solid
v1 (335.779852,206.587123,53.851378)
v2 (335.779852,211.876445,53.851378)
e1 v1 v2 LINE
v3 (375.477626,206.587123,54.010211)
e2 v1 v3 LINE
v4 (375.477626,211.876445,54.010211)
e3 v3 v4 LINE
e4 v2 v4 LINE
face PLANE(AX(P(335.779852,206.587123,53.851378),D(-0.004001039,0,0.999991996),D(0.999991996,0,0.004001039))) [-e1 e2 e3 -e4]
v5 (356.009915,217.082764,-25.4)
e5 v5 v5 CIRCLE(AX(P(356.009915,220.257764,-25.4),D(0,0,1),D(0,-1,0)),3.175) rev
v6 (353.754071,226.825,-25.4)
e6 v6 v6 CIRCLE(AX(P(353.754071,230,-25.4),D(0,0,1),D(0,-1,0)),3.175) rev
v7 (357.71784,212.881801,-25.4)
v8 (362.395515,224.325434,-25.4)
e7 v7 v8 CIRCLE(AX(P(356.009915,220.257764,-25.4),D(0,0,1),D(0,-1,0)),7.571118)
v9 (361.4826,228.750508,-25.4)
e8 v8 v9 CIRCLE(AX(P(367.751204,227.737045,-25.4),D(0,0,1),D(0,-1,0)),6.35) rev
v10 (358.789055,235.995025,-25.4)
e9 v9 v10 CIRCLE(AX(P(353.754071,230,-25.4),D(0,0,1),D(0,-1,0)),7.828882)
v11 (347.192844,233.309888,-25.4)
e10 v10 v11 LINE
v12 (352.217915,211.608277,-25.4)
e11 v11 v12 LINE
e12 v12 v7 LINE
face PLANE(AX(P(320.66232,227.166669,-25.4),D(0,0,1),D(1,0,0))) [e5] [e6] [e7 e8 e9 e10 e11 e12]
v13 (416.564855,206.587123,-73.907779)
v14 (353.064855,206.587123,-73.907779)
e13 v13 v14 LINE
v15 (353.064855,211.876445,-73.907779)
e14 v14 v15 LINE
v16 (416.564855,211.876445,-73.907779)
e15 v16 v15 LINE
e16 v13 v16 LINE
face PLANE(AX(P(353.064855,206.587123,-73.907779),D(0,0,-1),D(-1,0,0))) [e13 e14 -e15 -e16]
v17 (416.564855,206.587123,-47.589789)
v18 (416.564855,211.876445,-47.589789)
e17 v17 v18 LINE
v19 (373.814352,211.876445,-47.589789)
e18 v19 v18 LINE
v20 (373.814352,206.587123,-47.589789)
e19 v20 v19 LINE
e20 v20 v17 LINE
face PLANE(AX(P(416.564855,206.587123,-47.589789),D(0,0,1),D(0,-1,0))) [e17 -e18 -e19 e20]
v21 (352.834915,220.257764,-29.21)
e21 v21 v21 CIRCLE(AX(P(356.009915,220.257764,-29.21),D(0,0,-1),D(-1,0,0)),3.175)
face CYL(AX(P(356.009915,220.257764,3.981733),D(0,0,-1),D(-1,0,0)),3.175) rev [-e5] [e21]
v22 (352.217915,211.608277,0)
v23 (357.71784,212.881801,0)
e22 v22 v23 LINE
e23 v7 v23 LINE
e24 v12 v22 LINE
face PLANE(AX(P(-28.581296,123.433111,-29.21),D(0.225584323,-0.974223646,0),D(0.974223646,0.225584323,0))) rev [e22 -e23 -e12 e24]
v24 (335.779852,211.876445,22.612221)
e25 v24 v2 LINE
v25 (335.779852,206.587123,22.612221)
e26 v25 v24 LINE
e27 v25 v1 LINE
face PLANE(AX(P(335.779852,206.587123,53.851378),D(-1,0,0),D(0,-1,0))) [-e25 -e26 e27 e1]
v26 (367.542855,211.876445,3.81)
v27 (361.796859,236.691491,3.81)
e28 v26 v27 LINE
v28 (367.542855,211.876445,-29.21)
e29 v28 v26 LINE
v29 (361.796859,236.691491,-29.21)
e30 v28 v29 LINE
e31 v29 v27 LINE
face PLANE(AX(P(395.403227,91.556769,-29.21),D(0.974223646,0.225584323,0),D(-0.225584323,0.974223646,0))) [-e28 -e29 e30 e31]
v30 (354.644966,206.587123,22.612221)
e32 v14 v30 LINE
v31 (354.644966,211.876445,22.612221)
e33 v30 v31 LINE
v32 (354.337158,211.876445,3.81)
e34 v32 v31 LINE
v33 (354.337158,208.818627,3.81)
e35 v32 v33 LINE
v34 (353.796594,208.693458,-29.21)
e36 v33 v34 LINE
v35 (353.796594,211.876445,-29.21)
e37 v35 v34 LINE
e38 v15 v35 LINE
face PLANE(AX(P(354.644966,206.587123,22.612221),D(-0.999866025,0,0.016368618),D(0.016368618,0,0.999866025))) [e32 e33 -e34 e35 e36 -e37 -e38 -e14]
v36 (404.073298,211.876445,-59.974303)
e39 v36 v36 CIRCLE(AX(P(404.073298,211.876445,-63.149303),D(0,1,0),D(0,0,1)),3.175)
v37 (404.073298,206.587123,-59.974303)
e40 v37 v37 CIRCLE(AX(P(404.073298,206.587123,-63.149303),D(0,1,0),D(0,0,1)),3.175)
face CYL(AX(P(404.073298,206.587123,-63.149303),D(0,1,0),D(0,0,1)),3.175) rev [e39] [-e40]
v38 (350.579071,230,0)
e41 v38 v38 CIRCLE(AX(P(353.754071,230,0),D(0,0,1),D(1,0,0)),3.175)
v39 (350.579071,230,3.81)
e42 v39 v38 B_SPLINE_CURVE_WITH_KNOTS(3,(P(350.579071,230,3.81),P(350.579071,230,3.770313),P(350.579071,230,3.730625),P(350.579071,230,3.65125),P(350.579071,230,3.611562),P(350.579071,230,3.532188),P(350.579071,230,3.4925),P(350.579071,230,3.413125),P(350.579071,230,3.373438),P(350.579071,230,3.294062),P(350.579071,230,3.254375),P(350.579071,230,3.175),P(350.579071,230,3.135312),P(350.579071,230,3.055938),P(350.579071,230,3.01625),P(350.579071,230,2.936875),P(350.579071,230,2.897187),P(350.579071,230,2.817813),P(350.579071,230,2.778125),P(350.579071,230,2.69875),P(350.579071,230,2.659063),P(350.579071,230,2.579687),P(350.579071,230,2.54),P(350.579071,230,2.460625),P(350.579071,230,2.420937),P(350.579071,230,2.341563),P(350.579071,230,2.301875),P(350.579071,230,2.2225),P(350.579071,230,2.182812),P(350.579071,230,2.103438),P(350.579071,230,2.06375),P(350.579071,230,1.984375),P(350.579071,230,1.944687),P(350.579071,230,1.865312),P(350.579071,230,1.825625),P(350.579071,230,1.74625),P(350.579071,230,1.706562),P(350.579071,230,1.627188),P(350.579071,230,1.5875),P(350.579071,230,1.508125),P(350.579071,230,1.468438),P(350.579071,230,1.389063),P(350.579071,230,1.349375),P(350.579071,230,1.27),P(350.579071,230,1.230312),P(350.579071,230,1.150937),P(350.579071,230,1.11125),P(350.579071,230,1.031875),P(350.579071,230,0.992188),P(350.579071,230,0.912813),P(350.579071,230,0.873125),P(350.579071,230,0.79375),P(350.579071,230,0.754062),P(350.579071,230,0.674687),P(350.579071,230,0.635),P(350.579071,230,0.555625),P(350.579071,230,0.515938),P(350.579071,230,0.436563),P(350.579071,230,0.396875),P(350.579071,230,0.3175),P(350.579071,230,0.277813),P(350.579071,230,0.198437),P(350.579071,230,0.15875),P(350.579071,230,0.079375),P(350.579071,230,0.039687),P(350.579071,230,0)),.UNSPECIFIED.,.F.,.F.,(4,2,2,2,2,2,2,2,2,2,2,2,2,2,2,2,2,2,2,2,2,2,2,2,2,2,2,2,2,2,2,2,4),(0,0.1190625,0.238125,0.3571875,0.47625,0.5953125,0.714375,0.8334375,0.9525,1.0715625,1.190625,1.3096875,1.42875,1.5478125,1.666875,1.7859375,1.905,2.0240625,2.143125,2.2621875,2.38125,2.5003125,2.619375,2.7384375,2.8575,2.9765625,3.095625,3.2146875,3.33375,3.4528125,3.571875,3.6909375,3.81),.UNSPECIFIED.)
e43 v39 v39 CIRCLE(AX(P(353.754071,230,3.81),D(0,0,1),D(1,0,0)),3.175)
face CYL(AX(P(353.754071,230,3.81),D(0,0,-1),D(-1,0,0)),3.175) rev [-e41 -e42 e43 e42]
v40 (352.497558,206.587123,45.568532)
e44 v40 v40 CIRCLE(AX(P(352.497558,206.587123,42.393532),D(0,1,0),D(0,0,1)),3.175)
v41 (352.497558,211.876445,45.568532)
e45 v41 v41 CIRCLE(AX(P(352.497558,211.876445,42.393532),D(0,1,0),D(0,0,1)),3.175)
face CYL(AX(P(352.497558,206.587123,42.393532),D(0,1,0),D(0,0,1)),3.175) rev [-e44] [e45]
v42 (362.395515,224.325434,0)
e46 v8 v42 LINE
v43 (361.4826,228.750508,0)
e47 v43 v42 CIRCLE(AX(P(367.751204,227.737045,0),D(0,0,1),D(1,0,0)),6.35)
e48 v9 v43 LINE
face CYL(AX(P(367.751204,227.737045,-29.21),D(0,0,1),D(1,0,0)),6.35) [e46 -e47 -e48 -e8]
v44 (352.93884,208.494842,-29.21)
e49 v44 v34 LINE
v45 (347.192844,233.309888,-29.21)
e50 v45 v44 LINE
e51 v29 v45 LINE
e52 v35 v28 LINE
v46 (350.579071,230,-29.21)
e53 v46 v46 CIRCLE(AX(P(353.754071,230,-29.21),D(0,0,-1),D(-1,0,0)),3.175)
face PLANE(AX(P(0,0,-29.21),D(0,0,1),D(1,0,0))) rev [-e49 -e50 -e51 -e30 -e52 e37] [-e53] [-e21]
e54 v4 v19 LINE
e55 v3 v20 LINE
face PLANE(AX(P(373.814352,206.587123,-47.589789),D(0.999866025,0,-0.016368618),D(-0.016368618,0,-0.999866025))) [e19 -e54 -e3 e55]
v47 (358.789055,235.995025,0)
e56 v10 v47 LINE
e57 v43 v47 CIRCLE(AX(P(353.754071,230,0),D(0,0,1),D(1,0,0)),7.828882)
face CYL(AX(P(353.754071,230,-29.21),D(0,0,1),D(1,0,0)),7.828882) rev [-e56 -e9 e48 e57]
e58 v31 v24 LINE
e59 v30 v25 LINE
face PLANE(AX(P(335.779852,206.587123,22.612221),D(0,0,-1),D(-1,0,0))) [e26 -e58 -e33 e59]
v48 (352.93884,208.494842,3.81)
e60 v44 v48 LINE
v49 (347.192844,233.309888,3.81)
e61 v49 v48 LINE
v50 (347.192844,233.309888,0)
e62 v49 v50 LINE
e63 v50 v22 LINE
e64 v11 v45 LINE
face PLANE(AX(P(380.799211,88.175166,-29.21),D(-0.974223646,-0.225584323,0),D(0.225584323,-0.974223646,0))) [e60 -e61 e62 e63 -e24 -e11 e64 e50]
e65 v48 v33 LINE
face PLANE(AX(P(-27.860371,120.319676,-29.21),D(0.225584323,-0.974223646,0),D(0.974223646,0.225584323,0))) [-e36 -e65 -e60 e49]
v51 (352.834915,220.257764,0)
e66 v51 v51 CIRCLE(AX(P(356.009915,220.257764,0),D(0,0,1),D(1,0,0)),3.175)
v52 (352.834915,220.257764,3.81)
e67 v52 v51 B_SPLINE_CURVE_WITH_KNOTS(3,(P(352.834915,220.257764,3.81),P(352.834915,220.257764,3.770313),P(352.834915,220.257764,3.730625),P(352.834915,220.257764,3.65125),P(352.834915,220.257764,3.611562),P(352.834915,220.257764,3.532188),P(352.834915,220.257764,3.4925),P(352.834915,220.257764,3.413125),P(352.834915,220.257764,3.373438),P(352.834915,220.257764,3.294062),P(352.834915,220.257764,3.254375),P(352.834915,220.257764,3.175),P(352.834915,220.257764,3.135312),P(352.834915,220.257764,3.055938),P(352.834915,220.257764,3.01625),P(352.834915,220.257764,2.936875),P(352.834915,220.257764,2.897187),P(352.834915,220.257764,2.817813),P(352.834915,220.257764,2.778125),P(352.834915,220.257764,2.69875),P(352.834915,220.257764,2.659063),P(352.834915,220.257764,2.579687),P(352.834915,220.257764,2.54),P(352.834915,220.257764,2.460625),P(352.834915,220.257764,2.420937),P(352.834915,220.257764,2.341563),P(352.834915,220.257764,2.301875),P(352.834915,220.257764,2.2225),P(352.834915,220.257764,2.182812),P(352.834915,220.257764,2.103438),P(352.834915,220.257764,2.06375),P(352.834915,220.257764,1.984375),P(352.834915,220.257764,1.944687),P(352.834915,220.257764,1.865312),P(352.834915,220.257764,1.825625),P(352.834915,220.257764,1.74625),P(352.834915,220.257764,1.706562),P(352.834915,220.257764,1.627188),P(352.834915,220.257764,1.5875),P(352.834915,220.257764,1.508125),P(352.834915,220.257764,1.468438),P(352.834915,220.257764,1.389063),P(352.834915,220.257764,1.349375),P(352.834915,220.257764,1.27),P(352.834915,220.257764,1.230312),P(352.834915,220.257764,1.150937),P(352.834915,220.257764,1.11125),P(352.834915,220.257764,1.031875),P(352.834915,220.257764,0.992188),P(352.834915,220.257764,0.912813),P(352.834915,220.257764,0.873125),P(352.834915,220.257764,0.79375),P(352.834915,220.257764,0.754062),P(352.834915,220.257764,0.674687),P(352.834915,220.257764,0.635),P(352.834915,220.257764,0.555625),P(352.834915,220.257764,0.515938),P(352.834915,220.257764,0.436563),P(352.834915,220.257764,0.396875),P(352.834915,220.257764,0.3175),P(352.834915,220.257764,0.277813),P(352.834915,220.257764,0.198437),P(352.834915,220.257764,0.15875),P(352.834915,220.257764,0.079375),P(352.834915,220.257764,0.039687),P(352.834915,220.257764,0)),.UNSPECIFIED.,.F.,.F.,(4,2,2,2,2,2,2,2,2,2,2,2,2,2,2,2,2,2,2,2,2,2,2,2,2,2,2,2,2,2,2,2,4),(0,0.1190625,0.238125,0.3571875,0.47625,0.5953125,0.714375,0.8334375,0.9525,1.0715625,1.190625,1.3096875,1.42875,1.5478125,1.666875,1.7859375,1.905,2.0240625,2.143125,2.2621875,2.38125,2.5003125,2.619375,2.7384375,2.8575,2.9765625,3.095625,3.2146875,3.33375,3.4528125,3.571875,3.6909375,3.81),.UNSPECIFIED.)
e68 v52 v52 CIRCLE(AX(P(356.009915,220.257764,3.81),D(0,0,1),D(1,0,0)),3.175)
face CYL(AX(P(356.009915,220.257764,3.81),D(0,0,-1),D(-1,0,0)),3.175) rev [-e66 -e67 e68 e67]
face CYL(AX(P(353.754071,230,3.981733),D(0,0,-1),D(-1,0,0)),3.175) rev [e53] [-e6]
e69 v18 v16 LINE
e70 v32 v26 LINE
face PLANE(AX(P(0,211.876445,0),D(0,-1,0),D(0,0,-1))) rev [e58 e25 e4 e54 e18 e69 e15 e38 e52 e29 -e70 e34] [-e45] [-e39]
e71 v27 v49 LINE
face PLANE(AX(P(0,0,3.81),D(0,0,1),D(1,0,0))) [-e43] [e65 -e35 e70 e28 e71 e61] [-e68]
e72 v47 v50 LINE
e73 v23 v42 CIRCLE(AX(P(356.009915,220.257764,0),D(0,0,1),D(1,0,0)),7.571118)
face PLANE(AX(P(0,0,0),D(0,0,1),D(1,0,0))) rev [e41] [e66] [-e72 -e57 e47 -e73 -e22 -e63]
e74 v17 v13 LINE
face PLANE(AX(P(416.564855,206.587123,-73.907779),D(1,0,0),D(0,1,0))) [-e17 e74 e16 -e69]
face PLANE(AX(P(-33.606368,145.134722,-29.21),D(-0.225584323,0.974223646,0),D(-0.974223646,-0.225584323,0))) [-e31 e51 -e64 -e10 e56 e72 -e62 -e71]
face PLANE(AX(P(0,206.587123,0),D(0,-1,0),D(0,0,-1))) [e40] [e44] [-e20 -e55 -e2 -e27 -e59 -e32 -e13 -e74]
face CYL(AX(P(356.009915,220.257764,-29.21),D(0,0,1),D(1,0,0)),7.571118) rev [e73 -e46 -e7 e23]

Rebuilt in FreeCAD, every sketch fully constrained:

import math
import FreeCAD as App
import Part
import Sketcher
Q = App.Units.Quantity

doc = App.newDocument("Part")
body = doc.addObject("PartDesign::Body", "Body")

# Sketch on XY plane
sketch1 = body.newObject("Sketcher::SketchObject", "Sketch")
sketch1.AttachmentSupport = (doc.getObject("XY_Plane"), [""])
sketch1.MapMode = "FlatFace"
sketch1.addGeometry([
    Part.LineSegment(App.Vector(357.71784, 212.881801, 0), App.Vector(352.217915, 211.608277, 0)),  # 0
    Part.LineSegment(App.Vector(352.217915, 211.608277, 0), App.Vector(352.93884, 208.494842, 0)),  # 1
    Part.LineSegment(App.Vector(352.93884, 208.494842, 0), App.Vector(367.542855, 211.876445, 0)),  # 2
    Part.LineSegment(App.Vector(367.542855, 211.876445, 0), App.Vector(361.796859, 236.691491, 0)),  # 3
    Part.LineSegment(App.Vector(361.796859, 236.691491, 0), App.Vector(358.789055, 235.995025, 0)),  # 4
    Part.ArcOfCircle(Part.Circle(App.Vector(353.754071, 230, 0), App.Vector(0, 0, 1), 7.828882), math.radians(-9.183701), math.radians(49.974432)),  # 5
    Part.ArcOfCircle(Part.Circle(App.Vector(367.751204, 227.737045, 0), App.Vector(0, 0, 1), 6.35), math.radians(170.816299), math.radians(212.497415)),  # 6
    Part.ArcOfCircle(Part.Circle(App.Vector(356.009915, 220.257764, 0), App.Vector(0, 0, 1), 7.571118), math.radians(-22.932145), math.radians(32.497415)),  # 7
    Part.ArcOfCircle(Part.Circle(App.Vector(356.009915, 220.257764, 0), App.Vector(0, 0, 1), 7.571118), math.radians(-76.962759), math.radians(-22.932145)),  # 8
], False)
sketch1.addConstraint([
    Sketcher.Constraint("Coincident", 0, 2, 1, 1),
    Sketcher.Constraint("Coincident", 1, 2, 2, 1),
    Sketcher.Constraint("Coincident", 2, 2, 3, 1),
    Sketcher.Constraint("Coincident", 3, 2, 4, 1),
    Sketcher.Constraint("Coincident", 4, 2, 5, 2),
    Sketcher.Constraint("Tangent", 5, 1, 6, 1),
    Sketcher.Constraint("Tangent", 6, 2, 7, 2),
    Sketcher.Constraint("Tangent", 7, 1, 8, 2),
    Sketcher.Constraint("Tangent", 8, 1, 0, 1),
    Sketcher.Constraint("Equal", 7, 8),
    Sketcher.Constraint("Perpendicular", 0, 1),
    Sketcher.Constraint("Perpendicular", 1, 2),
    Sketcher.Constraint("Perpendicular", 2, 3),
    Sketcher.Constraint("Perpendicular", 3, 4),
    Sketcher.Constraint("Radius", 6, Q("0.25 in")),
    Sketcher.Constraint("Radius", 5, Q("7.828882 mm")),
    Sketcher.Constraint("Radius", 7, Q("7.571118 mm")),
    Sketcher.Constraint("DistanceY", 6, 3, 5, 1, Q("0.0399001 in")),
    Sketcher.Constraint("DistanceY", -1, 1, 5, 3, Q("230 mm")),
    Sketcher.Constraint("DistanceX", -1, 1, 5, 1, Q("361.4826 mm")),
    Sketcher.Constraint("DistanceY", -1, 1, 8, 1, Q("212.881801 mm")),
    Sketcher.Constraint("DistanceX", 0, 2, 7, 3, Q("3.792 mm")),
    Sketcher.Constraint("DistanceY", 2, 2, 6, 3, Q("15.860601 mm")),
    Sketcher.Constraint("DistanceX", 8, 3, 6, 2, Q("6.3856 mm")),
    Sketcher.Constraint("DistanceX", 1, 2, 8, 1, Q("4.779 mm")),
    Sketcher.Constraint("Distance", 3, Q("25.471611 mm")),
    Sketcher.Constraint("DistanceX", 6, 2, 7, 1, Q("0.58715 mm")),
])
pad1 = body.newObject("PartDesign::Pad", "Pad")
pad1.Profile = sketch1
pad1.Length = Q("1.15 in")
pad1.Reversed = True

# Sketch on XY plane
sketch2 = body.newObject("Sketcher::SketchObject", "Sketch001")
sketch2.AttachmentSupport = (doc.getObject("XY_Plane"), [""])
sketch2.MapMode = "FlatFace"
sketch2.AttachmentOffset = App.Placement(App.Vector(0, 0, -1 * 25.4), App.Rotation())
sketch2.addGeometry([
    Part.LineSegment(App.Vector(352.2, 211.6, 0), App.Vector(347.2, 233.3, 0)),  # 0
    Part.LineSegment(App.Vector(347.2, 233.3, 0), App.Vector(358.8, 236, 0)),  # 1
    Part.ArcOfCircle(Part.Circle(App.Vector(353.8, 230, 0), App.Vector(0, 0, 1), 7.8), math.radians(-9), math.radians(50)),  # 2
    Part.ArcOfCircle(Part.Circle(App.Vector(367.8, 227.7, 0), App.Vector(0, 0, 1), 6.3), math.radians(171), math.radians(212)),  # 3
    Part.ArcOfCircle(Part.Circle(App.Vector(356, 220.3, 0), App.Vector(0, 0, 1), 7.6), math.radians(-77), math.radians(32)),  # 4
    Part.LineSegment(App.Vector(357.7, 212.9, 0), App.Vector(352.2, 211.6, 0)),  # 5
    Part.Circle(App.Vector(356, 220.3, 0), App.Vector(0, 0, 1), 3.2),  # 6
    Part.Circle(App.Vector(353.8, 230, 0), App.Vector(0, 0, 1), 3.2),  # 7
], False)
sketch2.addConstraint([
    Sketcher.Constraint("Coincident", 0, 2, 1, 1),
    Sketcher.Constraint("Coincident", 1, 2, 2, 2),
    Sketcher.Constraint("Tangent", 2, 1, 3, 1),
    Sketcher.Constraint("Tangent", 3, 2, 4, 2),
    Sketcher.Constraint("Tangent", 4, 1, 5, 1),
    Sketcher.Constraint("Coincident", 5, 2, 0, 1),
    Sketcher.Constraint("Coincident", 6, 3, 4, 3),
    Sketcher.Constraint("Coincident", 7, 3, 2, 3),
    Sketcher.Constraint("Equal", 6, 7),
    Sketcher.Constraint("Perpendicular", 0, 1),
    Sketcher.Constraint("Parallel", 1, 5),
    Sketcher.Constraint("Diameter", 6, Q("0.25 in")),
    Sketcher.Constraint("Radius", 3, Q("0.25 in")),
    Sketcher.Constraint("Distance", 0, Q("0.877 in")),
    Sketcher.Constraint("Radius", 2, Q("7.828882 mm")),
    Sketcher.Constraint("Radius", 4, Q("7.571118 mm")),
    Sketcher.Constraint("DistanceY", 3, 3, 2, 1, Q("0.0399001 in")),
    Sketcher.Constraint("DistanceY", -1, 1, 2, 3, Q("230 mm")),
    Sketcher.Constraint("DistanceX", -1, 1, 2, 1, Q("361.4826 mm")),
    Sketcher.Constraint("DistanceY", -1, 1, 4, 1, Q("212.881801 mm")),
    Sketcher.Constraint("DistanceX", 6, 3, 3, 2, Q("6.3856 mm")),
    Sketcher.Constraint("DistanceX", 5, 2, 4, 3, Q("3.792 mm")),
])
pad2 = body.newObject("PartDesign::Pad", "Pad001")
pad2.Profile = sketch2
pad2.Length = Q("0.15 in")
pad2.Reversed = True

# Sketch on XY plane
sketch3 = body.newObject("Sketcher::SketchObject", "Sketch002")
sketch3.AttachmentSupport = (doc.getObject("XY_Plane"), [""])
sketch3.MapMode = "FlatFace"
sketch3.AttachmentOffset = App.Placement(App.Vector(0, 0, 0.15 * 25.4), App.Rotation())
sketch3.addGeometry([
    Part.LineSegment(App.Vector(358.8, 236, 0), App.Vector(347.2, 233.3, 0)),  # 0
    Part.LineSegment(App.Vector(347.2, 233.3, 0), App.Vector(352.2, 211.6, 0)),  # 1
    Part.LineSegment(App.Vector(352.2, 211.6, 0), App.Vector(352.9, 208.5, 0)),  # 2
    Part.LineSegment(App.Vector(352.9, 208.5, 0), App.Vector(367.5, 211.9, 0)),  # 3
    Part.LineSegment(App.Vector(367.5, 211.9, 0), App.Vector(361.8, 236.7, 0)),  # 4
    Part.LineSegment(App.Vector(361.8, 236.7, 0), App.Vector(358.8, 236, 0)),  # 5
    Part.Circle(App.Vector(356, 220.3, 0), App.Vector(0, 0, 1), 3.2),  # 6
    Part.Circle(App.Vector(353.8, 230, 0), App.Vector(0, 0, 1), 3.2),  # 7
], False)
sketch3.addConstraint([
    Sketcher.Constraint("Coincident", 0, 2, 1, 1),
    Sketcher.Constraint("Coincident", 1, 2, 2, 1),
    Sketcher.Constraint("Coincident", 2, 2, 3, 1),
    Sketcher.Constraint("Coincident", 3, 2, 4, 1),
    Sketcher.Constraint("Coincident", 4, 2, 5, 1),
    Sketcher.Constraint("Coincident", 5, 2, 0, 1),
    Sketcher.Constraint("Equal", 6, 7),
    Sketcher.Constraint("Perpendicular", 0, 1),
    Sketcher.Constraint("Parallel", 1, 2),
    Sketcher.Constraint("Perpendicular", 2, 3),
    Sketcher.Constraint("Perpendicular", 3, 4),
    Sketcher.Constraint("Perpendicular", 4, 5),
    Sketcher.Constraint("Diameter", 6, Q("0.25 in")),
    Sketcher.Constraint("Distance", 1, Q("0.877 in")),
    Sketcher.Constraint("DistanceY", -1, 1, 7, 3, Q("230 mm")),
    Sketcher.Constraint("DistanceX", 1, 2, 6, 3, Q("3.792 mm")),
    Sketcher.Constraint("Distance", 0, Q("11.903029 mm")),
    Sketcher.Constraint("Distance", 2, Q("3.195811 mm")),
    Sketcher.Constraint("DistanceX", -1, 1, 7, 3, Q("353.754071 mm")),
    Sketcher.Constraint("DistanceY", -1, 1, 0, 2, Q("233.309888 mm")),
    Sketcher.Constraint("DistanceX", -1, 1, 2, 2, Q("352.93884 mm")),
    Sketcher.Constraint("DistanceX", -1, 1, 4, 2, Q("361.796859 mm")),
    Sketcher.Constraint("DistanceY", -1, 1, 4, 2, Q("236.691491 mm")),
    Sketcher.Constraint("DistanceY", 2, 2, 6, 3, Q("11.762921 mm")),
])
pad3 = body.newObject("PartDesign::Pad", "Pad002")
pad3.Profile = sketch3
pad3.Length = Q("0.15 in")
pad3.Reversed = True

# Sketch on XZ plane
sketch4 = body.newObject("Sketcher::SketchObject", "Sketch003")
sketch4.AttachmentSupport = (doc.getObject("XZ_Plane"), [""])
sketch4.MapMode = "FlatFace"
sketch4.AttachmentOffset = App.Placement(App.Vector(0, 0, -211.876445), App.Rotation())
sketch4.addGeometry([
    Part.LineSegment(App.Vector(416.564855, -73.907779, 0), App.Vector(353.064855, -73.907779, 0)),  # 0
    Part.LineSegment(App.Vector(353.064855, -73.907779, 0), App.Vector(354.644966, 22.612221, 0)),  # 1
    Part.LineSegment(App.Vector(354.644966, 22.612221, 0), App.Vector(335.779852, 22.612221, 0)),  # 2
    Part.LineSegment(App.Vector(335.779852, 22.612221, 0), App.Vector(335.779852, 53.851378, 0)),  # 3
    Part.LineSegment(App.Vector(335.779852, 53.851378, 0), App.Vector(375.477626, 54.010211, 0)),  # 4
    Part.LineSegment(App.Vector(375.477626, 54.010211, 0), App.Vector(373.814352, -47.589789, 0)),  # 5
    Part.LineSegment(App.Vector(373.814352, -47.589789, 0), App.Vector(416.564855, -47.589789, 0)),  # 6
    Part.LineSegment(App.Vector(416.564855, -47.589789, 0), App.Vector(416.564855, -73.907779, 0)),  # 7
    Part.Circle(App.Vector(352.497558, 42.393532, 0), App.Vector(0, 0, 1), 3.175),  # 8
    Part.Circle(App.Vector(404.073298, -63.149303, 0), App.Vector(0, 0, 1), 3.175),  # 9
], False)
sketch4.addConstraint([
    Sketcher.Constraint("Coincident", 0, 2, 1, 1),
    Sketcher.Constraint("Coincident", 1, 2, 2, 1),
    Sketcher.Constraint("Coincident", 2, 2, 3, 1),
    Sketcher.Constraint("Coincident", 3, 2, 4, 1),
    Sketcher.Constraint("Coincident", 4, 2, 5, 1),
    Sketcher.Constraint("Coincident", 5, 2, 6, 1),
    Sketcher.Constraint("Coincident", 6, 2, 7, 1),
    Sketcher.Constraint("Coincident", 7, 2, 0, 1),
    Sketcher.Constraint("Horizontal", 0),
    Sketcher.Constraint("Horizontal", 2),
    Sketcher.Constraint("Vertical", 3),
    Sketcher.Constraint("Horizontal", 6),
    Sketcher.Constraint("Vertical", 7),
    Sketcher.Constraint("Equal", 8, 9),
    Sketcher.Constraint("Parallel", 1, 5),
    Sketcher.Constraint("Diameter", 8, Q("0.25 in")),
    Sketcher.Constraint("DistanceX", 0, 2, 0, 1, Q("2.5 in")),
    Sketcher.Constraint("DistanceY", 0, 2, 1, 2, Q("3.8 in")),
    Sketcher.Constraint("DistanceY", 7, 2, 7, 1, Q("26.317991 mm")),
    Sketcher.Constraint("DistanceX", 2, 2, 5, 2, Q("38.034499 mm")),
    Sketcher.Constraint("Distance", 4, Q("39.698092 mm")),
    Sketcher.Constraint("DistanceX", 2, 2, 2, 1, Q("18.865114 mm")),
    Sketcher.Constraint("DistanceX", 6, 1, 6, 2, Q("42.750503 mm")),
    Sketcher.Constraint("DistanceY", 3, 1, 3, 2, Q("31.239157 mm")),
    Sketcher.Constraint("DistanceX", -1, 1, 8, 3, Q("352.497558 mm")),
    Sketcher.Constraint("DistanceY", 0, 2, -1, 1, Q("73.907779 mm")),
    Sketcher.Constraint("DistanceX", -1, 1, 5, 2, Q("373.814352 mm")),
    Sketcher.Constraint("DistanceX", 8, 3, 9, 3, Q("51.575739 mm")),
    Sketcher.Constraint("DistanceY", 0, 2, 8, 3, Q("116.301311 mm")),
    Sketcher.Constraint("DistanceY", 9, 3, 3, 2, Q("117.000681 mm")),
])
pad4 = body.newObject("PartDesign::Pad", "Pad003")
pad4.Profile = sketch4
pad4.Length = 5.289321

doc.recompute()
